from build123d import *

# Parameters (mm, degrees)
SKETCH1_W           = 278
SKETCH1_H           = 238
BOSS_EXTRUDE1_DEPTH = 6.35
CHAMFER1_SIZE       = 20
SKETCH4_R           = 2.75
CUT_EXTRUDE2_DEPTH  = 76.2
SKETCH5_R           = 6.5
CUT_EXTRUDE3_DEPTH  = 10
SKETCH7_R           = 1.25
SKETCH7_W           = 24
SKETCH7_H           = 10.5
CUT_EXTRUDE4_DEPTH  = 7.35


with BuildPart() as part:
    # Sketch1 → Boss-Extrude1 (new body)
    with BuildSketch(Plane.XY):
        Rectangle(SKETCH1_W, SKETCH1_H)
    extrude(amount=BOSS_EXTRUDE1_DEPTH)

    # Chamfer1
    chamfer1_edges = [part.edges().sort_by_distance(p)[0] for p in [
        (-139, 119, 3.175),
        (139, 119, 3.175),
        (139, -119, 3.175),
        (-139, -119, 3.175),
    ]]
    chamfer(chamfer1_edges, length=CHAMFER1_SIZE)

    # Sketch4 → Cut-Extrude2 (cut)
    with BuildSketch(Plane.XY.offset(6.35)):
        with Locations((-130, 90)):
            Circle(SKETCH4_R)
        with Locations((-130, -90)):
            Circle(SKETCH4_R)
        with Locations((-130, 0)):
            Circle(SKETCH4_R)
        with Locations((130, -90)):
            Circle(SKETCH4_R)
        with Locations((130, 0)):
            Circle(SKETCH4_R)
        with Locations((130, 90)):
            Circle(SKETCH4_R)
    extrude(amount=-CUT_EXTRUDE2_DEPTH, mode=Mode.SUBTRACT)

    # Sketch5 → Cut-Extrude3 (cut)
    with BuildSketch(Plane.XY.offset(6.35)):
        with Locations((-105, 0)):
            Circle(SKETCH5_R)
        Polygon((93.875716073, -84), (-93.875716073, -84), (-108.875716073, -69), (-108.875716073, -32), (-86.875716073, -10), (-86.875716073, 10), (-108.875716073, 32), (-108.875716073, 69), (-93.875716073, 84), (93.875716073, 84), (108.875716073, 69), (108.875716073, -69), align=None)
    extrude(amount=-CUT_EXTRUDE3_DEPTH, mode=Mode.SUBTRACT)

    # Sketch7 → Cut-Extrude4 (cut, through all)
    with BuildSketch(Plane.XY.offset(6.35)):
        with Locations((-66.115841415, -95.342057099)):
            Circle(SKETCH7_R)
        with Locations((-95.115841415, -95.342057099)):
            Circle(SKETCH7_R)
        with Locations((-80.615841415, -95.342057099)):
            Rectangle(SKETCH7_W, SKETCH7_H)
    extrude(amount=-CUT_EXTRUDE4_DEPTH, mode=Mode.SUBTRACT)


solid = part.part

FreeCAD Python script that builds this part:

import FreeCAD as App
import Part
import Sketcher


def edges_at(feature, points):
    """Names of the edges that pass closest to the given points."""
    edges = feature.Shape.Edges
    near = lambda p: min(range(len(edges)), key=lambda i: edges[i].distToShape(Part.Vertex(*p))[0])
    return sorted({f"Edge{near(p) + 1}" for p in points})


def add_polygon(sketch, points):
    """Adds a closed chain of lines whose ends are joined by coincident constraints."""
    first, n = sketch.GeometryCount, len(points)
    for a, b in zip(points, points[1:] + points[:1]):
        sketch.addGeometry(Part.LineSegment(App.Vector(*a, 0), App.Vector(*b, 0)), False)
    for i in range(n):
        sketch.addConstraint(Sketcher.Constraint("Coincident", first + i, 2, first + (i + 1) % n, 1))

doc = App.newDocument("Part")
body = doc.addObject("PartDesign::Body", "Body")

sketch1 = doc.addObject("Sketcher::SketchObject", "Sketch")
body.addObject(sketch1)
sketch1.AttachmentSupport = (doc.XY_Plane, [""])
sketch1.MapMode = "FlatFace"
add_polygon(sketch1, [(-139, 119), (-139, -119), (139, -119), (139, 119)])
sketch1.addConstraint(Sketcher.Constraint("Vertical", 0))
sketch1.addConstraint(Sketcher.Constraint("Horizontal", 1))
sketch1.addConstraint(Sketcher.Constraint("Vertical", 2))
sketch1.addConstraint(Sketcher.Constraint("Horizontal", 3))
sketch1.addConstraint(Sketcher.Constraint("Symmetric", 0, 2, 2, 2, -1, 1))
sketch1.addConstraint(Sketcher.Constraint("DistanceX", 1, 1, 1, 2, 278.0))
sketch1.addConstraint(Sketcher.Constraint("DistanceY", 0, 2, 0, 1, 238.0))
pad1 = doc.addObject("PartDesign::Pad", "Pad")
body.addObject(pad1)
pad1.Profile = sketch1
pad1.Length = 6.35
doc.recompute()

chamfer = doc.addObject("PartDesign::Chamfer", "Chamfer")
body.addObject(chamfer)
chamfer.Base = (pad1, edges_at(pad1, [
    (-139, 119, 3.175),
    (139, 119, 3.175),
    (139, -119, 3.175),
    (-139, -119, 3.175),
]))
chamfer.Size = 20

sketch2 = doc.addObject("Sketcher::SketchObject", "Sketch001")
body.addObject(sketch2)
sketch2.AttachmentSupport = (doc.XY_Plane, [""])
sketch2.MapMode = "FlatFace"
sketch2.AttachmentOffset = App.Placement(App.Vector(0, 0, 6.35), App.Rotation())
sketch2.addGeometry(Part.Circle(App.Vector(-130, 90, 0), App.Vector(0, 0, 1), 2.8), False)
sketch2.addGeometry(Part.Circle(App.Vector(-130, -90, 0), App.Vector(0, 0, 1), 2.8), False)
sketch2.addGeometry(Part.Circle(App.Vector(-130, 0, 0), App.Vector(0, 0, 1), 2.8), False)
sketch2.addGeometry(Part.Circle(App.Vector(130, -90, 0), App.Vector(0, 0, 1), 2.8), False)
sketch2.addGeometry(Part.Circle(App.Vector(130, 0, 0), App.Vector(0, 0, 1), 2.8), False)
sketch2.addGeometry(Part.Circle(App.Vector(130, 90, 0), App.Vector(0, 0, 1), 2.8), False)
sketch2.addConstraint(Sketcher.Constraint("Equal", 0, 1))
sketch2.addConstraint(Sketcher.Constraint("Equal", 1, 2))
sketch2.addConstraint(Sketcher.Constraint("Equal", 2, 3))
sketch2.addConstraint(Sketcher.Constraint("Equal", 3, 4))
sketch2.addConstraint(Sketcher.Constraint("Equal", 4, 5))
sketch2.addConstraint(Sketcher.Constraint("Symmetric", 0, 3, 3, 3, -1, 1))
sketch2.addConstraint(Sketcher.Constraint("Symmetric", 2, 3, 4, 3, -1, 1))
sketch2.addConstraint(Sketcher.Constraint("Symmetric", 1, 3, 5, 3, -1, 1))
sketch2.addConstraint(Sketcher.Constraint("Symmetric", 1, 3, 3, 3, -2))
sketch2.addConstraint(Sketcher.Constraint("PointOnObject", 2, 3, -1))
sketch2.addConstraint(Sketcher.Constraint("Vertical", 1, 3, 2, 3))
sketch2.addConstraint(Sketcher.Constraint("Diameter", 0, 5.5))
sketch2.addConstraint(Sketcher.Constraint("DistanceX", 0, 3, -1, 1, 130.0))
sketch2.addConstraint(Sketcher.Constraint("DistanceY", -1, 1, 0, 3, 90.0))
pocket1 = doc.addObject("PartDesign::Pocket", "Pocket")
body.addObject(pocket1)
pocket1.Profile = sketch2
pocket1.Length = 76.2

sketch3 = doc.addObject("Sketcher::SketchObject", "Sketch002")
body.addObject(sketch3)
sketch3.AttachmentSupport = (doc.XY_Plane, [""])
sketch3.MapMode = "FlatFace"
sketch3.AttachmentOffset = App.Placement(App.Vector(0, 0, 6.35), App.Rotation())
sketch3.addGeometry(Part.Circle(App.Vector(-105, 0, 0), App.Vector(0, 0, 1), 6), False)
add_polygon(sketch3, [(-94, -84), (94, -84), (109, -69), (109, 69), (94, 84), (-94, 84), (-109, 69), (-109, 32), (-87, 10), (-87, -10), (-109, -32), (-109, -69)])
sketch3.addConstraint(Sketcher.Constraint("Horizontal", 1))
sketch3.addConstraint(Sketcher.Constraint("Vertical", 3))
sketch3.addConstraint(Sketcher.Constraint("Horizontal", 5))
sketch3.addConstraint(Sketcher.Constraint("Vertical", 7))
sketch3.addConstraint(Sketcher.Constraint("Vertical", 9))
sketch3.addConstraint(Sketcher.Constraint("Vertical", 11))
sketch3.addConstraint(Sketcher.Constraint("Symmetric", 1, 2, 5, 2, -1, 1))
sketch3.addConstraint(Sketcher.Constraint("Symmetric", 2, 2, 6, 2, -1, 1))
sketch3.addConstraint(Sketcher.Constraint("Symmetric", 3, 2, 11, 2, -1, 1))
sketch3.addConstraint(Sketcher.Constraint("PointOnObject", 0, 3, -1))
sketch3.addConstraint(Sketcher.Constraint("Perpendicular", 2, 4))
sketch3.addConstraint(Sketcher.Constraint("Perpendicular", 6, 8))
sketch3.addConstraint(Sketcher.Constraint("Perpendicular", 8, 10))
sketch3.addConstraint(Sketcher.Constraint("Perpendicular", 10, 12))
sketch3.addConstraint(Sketcher.Constraint("Horizontal", 3, 2, 6, 2))
sketch3.addConstraint(Sketcher.Constraint("Vertical", 1, 2, 4, 2))
sketch3.addConstraint(Sketcher.Constraint("Equal", 7, 11))
sketch3.addConstraint(Sketcher.Constraint("Diameter", 0, 13.0))
sketch3.addConstraint(Sketcher.Constraint("DistanceY", 3, 1, 3, 2, 138.0))
sketch3.addConstraint(Sketcher.Constraint("DistanceY", 7, 2, 7, 1, 37.0))
sketch3.addConstraint(Sketcher.Constraint("DistanceY", 9, 2, 9, 1, 20.0))
sketch3.addConstraint(Sketcher.Constraint("DistanceX", 0, 3, -1, 1, 105.0))
sketch3.addConstraint(Sketcher.Constraint("DistanceY", 1, 2, -1, 1, 84.0))
sketch3.addConstraint(Sketcher.Constraint("DistanceX", 1, 1, 1, 2, 187.751432))
pocket2 = doc.addObject("PartDesign::Pocket", "Pocket001")
body.addObject(pocket2)
pocket2.Profile = sketch3
pocket2.Length = 10

sketch4 = doc.addObject("Sketcher::SketchObject", "Sketch003")
body.addObject(sketch4)
sketch4.AttachmentSupport = (doc.XY_Plane, [""])
sketch4.MapMode = "FlatFace"
sketch4.AttachmentOffset = App.Placement(App.Vector(0, 0, 6.35), App.Rotation())
sketch4.addGeometry(Part.Circle(App.Vector(-66.1, -95.3, 0), App.Vector(0, 0, 1), 1.2), False)
sketch4.addGeometry(Part.Circle(App.Vector(-95.1, -95.3, 0), App.Vector(0, 0, 1), 1.2), False)
add_polygon(sketch4, [(-92.6, -90.1), (-92.6, -100.6), (-68.6, -100.6), (-68.6, -90.1)])
sketch4.addConstraint(Sketcher.Constraint("Vertical", 2))
sketch4.addConstraint(Sketcher.Constraint("Horizontal", 3))
sketch4.addConstraint(Sketcher.Constraint("Vertical", 4))
sketch4.addConstraint(Sketcher.Constraint("Horizontal", 5))
sketch4.addConstraint(Sketcher.Constraint("Equal", 0, 1))
sketch4.addConstraint(Sketcher.Constraint("Horizontal", 0, 3, 1, 3))
sketch4.addConstraint(Sketcher.Constraint("Diameter", 0, 2.5))
sketch4.addConstraint(Sketcher.Constraint("DistanceX", 3, 1, 3, 2, 24.0))
sketch4.addConstraint(Sketcher.Constraint("DistanceY", 2, 2, 2, 1, 10.5))
sketch4.addConstraint(Sketcher.Constraint("DistanceX", 1, 3, 0, 3, 29.0))
sketch4.addConstraint(Sketcher.Constraint("DistanceX", 1, 3, 2, 2, 2.5))
sketch4.addConstraint(Sketcher.Constraint("DistanceY", 2, 2, 1, 3, 5.25))
sketch4.addConstraint(Sketcher.Constraint("DistanceX", 0, 3, -1, 1, 66.115841))
sketch4.addConstraint(Sketcher.Constraint("DistanceY", 0, 3, -1, 1, 95.342057))
pocket3 = doc.addObject("PartDesign::Pocket", "Pocket002")
body.addObject(pocket3)
pocket3.Profile = sketch4
pocket3.Type = "ThroughAll"

doc.recompute()
